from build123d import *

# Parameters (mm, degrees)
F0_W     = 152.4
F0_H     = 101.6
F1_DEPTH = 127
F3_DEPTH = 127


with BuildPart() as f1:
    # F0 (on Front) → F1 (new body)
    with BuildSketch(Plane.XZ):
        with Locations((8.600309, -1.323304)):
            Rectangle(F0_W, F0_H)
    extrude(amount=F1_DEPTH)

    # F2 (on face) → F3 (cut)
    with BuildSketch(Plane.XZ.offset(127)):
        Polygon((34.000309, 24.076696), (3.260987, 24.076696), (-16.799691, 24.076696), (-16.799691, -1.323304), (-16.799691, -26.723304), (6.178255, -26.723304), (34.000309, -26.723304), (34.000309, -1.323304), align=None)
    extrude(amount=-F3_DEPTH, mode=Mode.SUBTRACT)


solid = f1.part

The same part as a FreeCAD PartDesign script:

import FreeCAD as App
import Part
import Sketcher

V = App.Vector
Q = App.Units.Quantity


def add_polygon(sketch, points):
    """Adds a closed chain of lines whose ends are joined by coincident constraints."""
    first, n = sketch.GeometryCount, len(points)
    for a, b in zip(points, points[1:] + points[:1]):
        sketch.addGeometry(Part.LineSegment(App.Vector(*a, 0), App.Vector(*b, 0)), False)
    for i in range(n):
        sketch.addConstraint(Sketcher.Constraint("Coincident", first + i, 2, first + (i + 1) % n, 1))

doc = App.newDocument("Part")
params = doc.addObject("Spreadsheet::Sheet", "Params")
for row, (alias, value) in enumerate([
    ("sketch1_width", "6 in"),
    ("sketch1_height", "4 in"),
    ("pad1_length", "5 in"),
    ("sketch2_width", "2 in"),
    ("pocket1_length", "5 in"),
], start=1):
    params.set(f"A{row}", alias)
    params.set(f"B{row}", "=" + value)
    params.setAlias(f"B{row}", alias)

body = doc.addObject("PartDesign::Body", "Body")

# Sketch on XZ plane
sketch1 = body.newObject("Sketcher::SketchObject", "Sketch")
sketch1.AttachmentSupport = (doc.getObject("XZ_Plane"), [""])
sketch1.MapMode = "FlatFace"
add_polygon(sketch1, [(-67.599691, 49.476696), (-67.599691, -52.123304), (84.800309, -52.123304), (84.800309, 49.476696)])  # lines 0-3
sketch1.addConstraint(Sketcher.Constraint("Vertical", 0))
sketch1.addConstraint(Sketcher.Constraint("Horizontal", 1))
sketch1.addConstraint(Sketcher.Constraint("Vertical", 2))
sketch1.addConstraint(Sketcher.Constraint("Horizontal", 3))
sketch1.addConstraint(Sketcher.Constraint("DistanceX", 1, 1, 1, 2, Q("6 in")))
sketch1.addConstraint(Sketcher.Constraint("DistanceY", 0, 2, 0, 1, Q("4 in")))
sketch1.addConstraint(Sketcher.Constraint("DistanceX", 0, 2, -1, 1, 67.599691))
sketch1.addConstraint(Sketcher.Constraint("DistanceY", 0, 2, -1, 1, 52.123304))
sketch1.setExpression("Constraints[8]", "Params.sketch1_width")
sketch1.setExpression("Constraints[9]", "Params.sketch1_height")
pad1 = body.newObject("PartDesign::Pad", "Pad")
pad1.Profile = sketch1
pad1.setExpression("Length", "Params.pad1_length")

# Sketch on XZ plane
sketch2 = body.newObject("Sketcher::SketchObject", "Sketch001")
sketch2.AttachmentSupport = (doc.getObject("XZ_Plane"), [""])
sketch2.MapMode = "FlatFace"
sketch2.AttachmentOffset = App.Placement(V(0, 0, 5 * 25.4), App.Rotation())
add_polygon(sketch2, [(34.000309, 24.076696), (-16.799691, 24.076696), (-16.799691, -26.723304), (34.000309, -26.723304)])  # lines 0-3
sketch2.addConstraint(Sketcher.Constraint("Horizontal", 0))
sketch2.addConstraint(Sketcher.Constraint("Vertical", 1))
sketch2.addConstraint(Sketcher.Constraint("Horizontal", 2))
sketch2.addConstraint(Sketcher.Constraint("Vertical", 3))
sketch2.addConstraint(Sketcher.Constraint("Equal", 2, 1))
sketch2.addConstraint(Sketcher.Constraint("DistanceX", 0, 2, 0, 1, Q("2 in")))
sketch2.addConstraint(Sketcher.Constraint("DistanceX", 0, 2, -1, 1, 16.799691))
sketch2.addConstraint(Sketcher.Constraint("DistanceY", -1, 1, 0, 2, 24.076696))
sketch2.setExpression("Constraints[9]", "Params.sketch2_width")
pocket1 = body.newObject("PartDesign::Pocket", "Pocket")
pocket1.Profile = sketch2
pocket1.setExpression("Length", "Params.pocket1_length")

doc.recompute()
